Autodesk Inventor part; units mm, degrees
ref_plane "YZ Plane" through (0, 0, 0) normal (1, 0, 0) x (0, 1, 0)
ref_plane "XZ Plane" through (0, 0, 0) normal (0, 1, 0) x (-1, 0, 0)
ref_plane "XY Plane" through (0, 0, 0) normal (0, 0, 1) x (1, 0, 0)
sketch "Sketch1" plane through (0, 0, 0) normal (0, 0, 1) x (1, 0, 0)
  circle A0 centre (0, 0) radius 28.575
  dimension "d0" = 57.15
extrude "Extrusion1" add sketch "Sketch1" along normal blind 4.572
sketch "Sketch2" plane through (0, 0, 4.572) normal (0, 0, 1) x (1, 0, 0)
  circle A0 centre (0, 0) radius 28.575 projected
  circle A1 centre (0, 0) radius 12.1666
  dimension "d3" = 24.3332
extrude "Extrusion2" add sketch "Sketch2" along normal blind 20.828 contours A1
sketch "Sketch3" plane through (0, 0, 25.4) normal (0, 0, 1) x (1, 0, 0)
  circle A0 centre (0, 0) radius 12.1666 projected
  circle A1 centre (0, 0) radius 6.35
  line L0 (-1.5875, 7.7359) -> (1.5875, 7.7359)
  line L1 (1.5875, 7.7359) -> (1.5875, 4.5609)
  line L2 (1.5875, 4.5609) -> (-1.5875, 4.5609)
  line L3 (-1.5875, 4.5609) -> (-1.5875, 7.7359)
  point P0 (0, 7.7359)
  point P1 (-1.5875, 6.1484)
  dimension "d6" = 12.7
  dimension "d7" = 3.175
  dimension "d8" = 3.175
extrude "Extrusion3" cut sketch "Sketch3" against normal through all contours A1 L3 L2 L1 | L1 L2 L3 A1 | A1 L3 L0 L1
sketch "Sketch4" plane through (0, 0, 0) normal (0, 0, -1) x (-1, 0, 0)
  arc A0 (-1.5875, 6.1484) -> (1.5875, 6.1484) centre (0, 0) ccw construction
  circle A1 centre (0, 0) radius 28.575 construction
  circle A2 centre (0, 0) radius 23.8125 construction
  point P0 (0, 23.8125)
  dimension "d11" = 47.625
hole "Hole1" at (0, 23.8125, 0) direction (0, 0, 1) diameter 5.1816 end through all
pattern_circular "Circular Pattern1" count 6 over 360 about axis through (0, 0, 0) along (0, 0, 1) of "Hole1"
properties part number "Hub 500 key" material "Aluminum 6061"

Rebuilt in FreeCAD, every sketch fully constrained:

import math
import FreeCAD as App
import Part
import Sketcher

V = App.Vector
Q = App.Units.Quantity

doc = App.newDocument("Part")
body = doc.addObject("PartDesign::Body", "Body")

sketch1 = body.newObject("Sketcher::SketchObject", "Sketch")
sketch1.AttachmentSupport = (doc.getObject("XY_Plane"), [""])
sketch1.MapMode = "FlatFace"
sketch1.addGeometry(Part.Circle(V(0, 0, 0), V(0, 0, 1), 28.575), False)
sketch1.addConstraint([
    Sketcher.Constraint("Coincident", 0, 3, -1, 1),
    Sketcher.Constraint("Diameter", 0, Q("2.25 in")),
])
pad1 = body.newObject("PartDesign::Pad", "Pad")
pad1.Profile = sketch1
pad1.Length = Q("0.18 in")

sketch2 = body.newObject("Sketcher::SketchObject", "Sketch001")
sketch2.AttachmentSupport = (doc.getObject("XY_Plane"), [""])
sketch2.MapMode = "FlatFace"
sketch2.AttachmentOffset = App.Placement(V(0, 0, 0.18 * 25.4), App.Rotation())
sketch2.addGeometry(Part.Circle(V(0, 0, 0), V(0, 0, 1), 12.1666), False)
sketch2.addConstraint([
    Sketcher.Constraint("Coincident", 0, 3, -1, 1),
    Sketcher.Constraint("Diameter", 0, Q("0.958 in")),
])
pad2 = body.newObject("PartDesign::Pad", "Pad001")
pad2.Profile = sketch2
pad2.Length = Q("0.82 in")

sketch3 = body.newObject("Sketcher::SketchObject", "Sketch002")
sketch3.AttachmentSupport = (doc.getObject("XY_Plane"), [""])
sketch3.MapMode = "FlatFace"
sketch3.AttachmentOffset = App.Placement(V(0, 0, 1 * 25.4), App.Rotation())
sketch3.addGeometry([
    Part.ArcOfCircle(Part.Circle(V(0, 0, 0), V(0, 0, 1), 6.35), math.radians(104.477512), math.radians(435.522488)),
    Part.LineSegment(V(1.5875, 6.148361, 0), V(1.5875, 7.7359, 0)),
    Part.LineSegment(V(1.5875, 7.7359, 0), V(-1.5875, 7.7359, 0)),
    Part.LineSegment(V(-1.5875, 7.7359, 0), V(-1.5875, 6.148361, 0)),
], False)
sketch3.addConstraint([
    Sketcher.Constraint("Coincident", 0, 2, 1, 1),
    Sketcher.Constraint("Coincident", 1, 2, 2, 1),
    Sketcher.Constraint("Coincident", 2, 2, 3, 1),
    Sketcher.Constraint("Coincident", 3, 2, 0, 1),
    Sketcher.Constraint("Vertical", 1),
    Sketcher.Constraint("Horizontal", 2),
    Sketcher.Constraint("Vertical", 3),
    Sketcher.Constraint("Coincident", 0, 3, -1, 1),
    Sketcher.Constraint("Horizontal", 0, 2, 3, 2),
    Sketcher.Constraint("Radius", 0, Q("0.25 in")),
    Sketcher.Constraint("DistanceX", 2, 2, 2, 1, Q("0.125 in")),
    Sketcher.Constraint("DistanceY", 1, 1, 1, 2, Q("0.0625 in")),
])
pocket1 = body.newObject("PartDesign::Pocket", "Pocket")
pocket1.Profile = sketch3
pocket1.Type = "ThroughAll"

sketch4 = body.newObject("Sketcher::SketchObject", "Sketch003")
sketch4.AttachmentSupport = (doc.getObject("XY_Plane"), [""])
sketch4.MapMode = "FlatFace"
sketch4.addGeometry(Part.Circle(V(0, 23.8125, 0), V(0, 0, 1), 2.5908), False)
sketch4.addConstraint([
    Sketcher.Constraint("PointOnObject", 0, 3, -2),
    Sketcher.Constraint("Diameter", 0, Q("0.204 in")),
    Sketcher.Constraint("DistanceY", -1, 1, 0, 3, Q("0.9375 in")),
])
doc.recompute()
hole = body.newObject("PartDesign::Hole", "Hole")
hole.Profile = sketch4
hole.ThreadType = "None"
hole.Diameter = Q("0.204 in")
hole.DepthType = "ThroughAll"
hole.Reversed = True
doc.recompute()

polarpattern = body.newObject("PartDesign::PolarPattern", "PolarPattern")
polarpattern.Originals = [hole]
polarpattern.Axis = (doc.getObject("Z_Axis"), [""])
polarpattern.Angle = 360
polarpattern.Occurrences = 6
body.Tip = polarpattern

doc.recompute()
